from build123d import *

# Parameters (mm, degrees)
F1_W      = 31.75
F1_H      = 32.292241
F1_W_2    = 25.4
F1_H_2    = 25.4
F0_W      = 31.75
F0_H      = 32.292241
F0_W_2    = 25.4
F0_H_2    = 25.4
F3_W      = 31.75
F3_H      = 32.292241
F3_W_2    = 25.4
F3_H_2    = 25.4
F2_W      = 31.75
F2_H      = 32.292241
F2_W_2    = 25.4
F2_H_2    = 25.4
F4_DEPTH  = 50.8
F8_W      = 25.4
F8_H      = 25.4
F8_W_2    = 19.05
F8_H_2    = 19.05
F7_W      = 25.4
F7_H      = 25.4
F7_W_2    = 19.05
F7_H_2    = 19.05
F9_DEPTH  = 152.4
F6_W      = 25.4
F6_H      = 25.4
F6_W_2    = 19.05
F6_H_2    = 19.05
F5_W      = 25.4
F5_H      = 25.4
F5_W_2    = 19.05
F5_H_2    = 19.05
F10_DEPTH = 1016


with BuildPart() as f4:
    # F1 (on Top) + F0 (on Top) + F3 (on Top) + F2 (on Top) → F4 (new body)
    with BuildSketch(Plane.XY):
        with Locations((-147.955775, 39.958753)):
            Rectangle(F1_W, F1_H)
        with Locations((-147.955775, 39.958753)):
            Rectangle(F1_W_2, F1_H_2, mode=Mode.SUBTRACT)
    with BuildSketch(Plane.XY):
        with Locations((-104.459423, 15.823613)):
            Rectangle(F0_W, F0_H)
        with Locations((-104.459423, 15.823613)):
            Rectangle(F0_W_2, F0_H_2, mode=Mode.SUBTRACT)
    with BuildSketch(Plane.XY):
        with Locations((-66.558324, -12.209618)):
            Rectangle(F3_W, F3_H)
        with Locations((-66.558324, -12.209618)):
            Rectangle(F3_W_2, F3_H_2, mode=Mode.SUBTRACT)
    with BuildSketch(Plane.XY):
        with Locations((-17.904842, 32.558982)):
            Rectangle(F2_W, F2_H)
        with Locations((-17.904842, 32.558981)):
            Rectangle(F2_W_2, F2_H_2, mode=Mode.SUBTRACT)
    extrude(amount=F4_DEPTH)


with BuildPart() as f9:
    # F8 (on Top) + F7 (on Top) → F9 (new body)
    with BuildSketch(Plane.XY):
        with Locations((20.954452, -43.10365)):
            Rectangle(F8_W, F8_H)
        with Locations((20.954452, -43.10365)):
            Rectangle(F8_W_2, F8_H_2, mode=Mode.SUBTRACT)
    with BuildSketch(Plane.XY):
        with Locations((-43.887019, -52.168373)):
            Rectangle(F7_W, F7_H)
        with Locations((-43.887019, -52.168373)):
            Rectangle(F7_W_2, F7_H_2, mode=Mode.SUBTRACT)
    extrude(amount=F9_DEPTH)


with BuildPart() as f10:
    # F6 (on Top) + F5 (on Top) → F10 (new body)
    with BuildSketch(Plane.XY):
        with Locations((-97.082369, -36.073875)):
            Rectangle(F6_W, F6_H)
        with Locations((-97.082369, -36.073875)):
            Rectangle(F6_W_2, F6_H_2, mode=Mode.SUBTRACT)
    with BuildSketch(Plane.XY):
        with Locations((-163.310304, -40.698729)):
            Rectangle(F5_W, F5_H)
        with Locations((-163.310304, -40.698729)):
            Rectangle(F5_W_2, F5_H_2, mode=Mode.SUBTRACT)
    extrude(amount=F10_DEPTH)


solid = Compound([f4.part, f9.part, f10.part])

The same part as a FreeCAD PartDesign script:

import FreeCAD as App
import Part
import Sketcher
from FreeCAD import Vector
Q = App.Units.Quantity


def add_polygon(sketch, points):
    """Adds a closed chain of lines whose ends are joined by coincident constraints."""
    first, n = sketch.GeometryCount, len(points)
    for a, b in zip(points, points[1:] + points[:1]):
        sketch.addGeometry(Part.LineSegment(App.Vector(*a, 0), App.Vector(*b, 0)), False)
    for i in range(n):
        sketch.addConstraint(Sketcher.Constraint("Coincident", first + i, 2, first + (i + 1) % n, 1))

doc = App.newDocument("Part")
params = doc.addObject("Spreadsheet::Sheet", "Params")
for row, (alias, value) in enumerate([
    ("sketch1_width", "1 in"),
    ("sketch1_width2", "1.25 in"),
    ("pad1_length", "2 in"),
    ("sketch2_width", "1 in"),
    ("sketch2_width2", "0.75 in"),
    ("pad2_length", "6 in"),
    ("sketch3_width", "1 in"),
    ("sketch3_width2", "0.75 in"),
    ("pad3_length", "40 in"),
], start=1):
    params.set(f"A{row}", alias)
    params.set(f"B{row}", "=" + value)
    params.setAlias(f"B{row}", alias)

body = doc.addObject("PartDesign::Body", "Body")
body.AllowCompound = True

# Sketch on XY plane
sketch1 = doc.addObject("Sketcher::SketchObject", "Sketch")
body.addObject(sketch1)
sketch1.AttachmentSupport = (doc.XY_Plane, [""])
sketch1.MapMode = "FlatFace"
add_polygon(sketch1, [(-164, 56), (-164, 24), (-132, 24), (-132, 56)])  # lines 0-3
add_polygon(sketch1, [(-135, 27), (-161, 27), (-161, 53), (-135, 53)])  # lines 4-7
add_polygon(sketch1, [(-120, 32), (-120, 0), (-89, 0), (-89, 32)])  # lines 8-11
add_polygon(sketch1, [(-92, 3), (-117, 3), (-117, 29), (-92, 29)])  # lines 12-15
add_polygon(sketch1, [(-82, 4), (-82, -28), (-51, -28), (-51, 4)])  # lines 16-19
add_polygon(sketch1, [(-54, -25), (-79, -25), (-79, 0), (-54, 0)])  # lines 20-23
add_polygon(sketch1, [(-34, 49), (-34, 16), (-2, 16), (-2, 49)])  # lines 24-27
add_polygon(sketch1, [(-5, 20), (-31, 20), (-31, 45), (-5, 45)])  # lines 28-31
sketch1.addConstraint([
    Sketcher.Constraint("Vertical", 0),
    Sketcher.Constraint("Horizontal", 1),
    Sketcher.Constraint("Vertical", 2),
    Sketcher.Constraint("Horizontal", 3),
    Sketcher.Constraint("Horizontal", 4),
    Sketcher.Constraint("Vertical", 5),
    Sketcher.Constraint("Horizontal", 6),
    Sketcher.Constraint("Vertical", 7),
    Sketcher.Constraint("Vertical", 8),
    Sketcher.Constraint("Horizontal", 9),
    Sketcher.Constraint("Vertical", 10),
    Sketcher.Constraint("Horizontal", 11),
    Sketcher.Constraint("Horizontal", 12),
    Sketcher.Constraint("Vertical", 13),
    Sketcher.Constraint("Horizontal", 14),
    Sketcher.Constraint("Vertical", 15),
    Sketcher.Constraint("Vertical", 16),
    Sketcher.Constraint("Horizontal", 17),
    Sketcher.Constraint("Vertical", 18),
    Sketcher.Constraint("Horizontal", 19),
    Sketcher.Constraint("Horizontal", 20),
    Sketcher.Constraint("Vertical", 21),
    Sketcher.Constraint("Horizontal", 22),
    Sketcher.Constraint("Vertical", 23),
    Sketcher.Constraint("Vertical", 24),
    Sketcher.Constraint("Horizontal", 25),
    Sketcher.Constraint("Vertical", 26),
    Sketcher.Constraint("Horizontal", 27),
    Sketcher.Constraint("Horizontal", 28),
    Sketcher.Constraint("Vertical", 29),
    Sketcher.Constraint("Horizontal", 30),
    Sketcher.Constraint("Vertical", 31),
    Sketcher.Constraint("Equal", 3, 9),
    Sketcher.Constraint("Equal", 6, 12),
    Sketcher.Constraint("Equal", 11, 17),
    Sketcher.Constraint("Equal", 14, 20),
    Sketcher.Constraint("Equal", 19, 25),
    Sketcher.Constraint("Equal", 22, 28),
    Sketcher.Constraint("Equal", 30, 5),
    Sketcher.Constraint("Equal", 2, 8),
    Sketcher.Constraint("Equal", 7, 13),
    Sketcher.Constraint("Equal", 10, 16),
    Sketcher.Constraint("Equal", 15, 21),
    Sketcher.Constraint("Equal", 18, 24),
    Sketcher.Constraint("Equal", 23, 29),
    Sketcher.Constraint("DistanceX", 4, 2, 4, 1, Q("1 in")),
    Sketcher.Constraint("DistanceX", 1, 1, 1, 2, Q("1.25 in")),
    Sketcher.Constraint("DistanceX", 0, 2, 4, 2, Q("0.125 in")),
    Sketcher.Constraint("DistanceX", 8, 2, 12, 2, Q("0.125 in")),
    Sketcher.Constraint("DistanceX", 16, 2, 20, 2, Q("0.125 in")),
    Sketcher.Constraint("DistanceX", 24, 2, 28, 2, Q("0.125 in")),
    Sketcher.Constraint("DistanceY", 0, 2, 0, 1, Q("32.292241 mm")),
    Sketcher.Constraint("DistanceY", 1, 2, 10, 2, Q("8.157101 mm")),
    Sketcher.Constraint("DistanceX", 9, 2, 16, 2, Q("6.151099 mm")),
    Sketcher.Constraint("DistanceY", 17, 2, 24, 2, Q("44.7686 mm")),
    Sketcher.Constraint("DistanceY", 22, 2, 28, 2, Q("19.368599 mm")),
    Sketcher.Constraint("DistanceY", 16, 2, -1, 1, Q("28.355739 mm")),
    Sketcher.Constraint("DistanceX", 25, 2, -1, 1, Q("2.029842 mm")),
    Sketcher.Constraint("DistanceY", -1, 1, 28, 2, Q("19.858981 mm")),
    Sketcher.Constraint("DistanceY", 0, 2, 4, 2, Q("3.44612 mm")),
    Sketcher.Constraint("DistanceX", 1, 2, 8, 2, Q("11.746352 mm")),
    Sketcher.Constraint("DistanceY", 8, 2, 12, 2, Q("3.446121 mm")),
    Sketcher.Constraint("DistanceY", 16, 2, 9, 2, Q("28.033231 mm")),
    Sketcher.Constraint("DistanceX", 18, 2, 24, 2, Q("16.903482 mm")),
])
sketch1.setExpression("Constraints[77]", "Params.sketch1_width")
sketch1.setExpression("Constraints[78]", "Params.sketch1_width2")
pad1 = doc.addObject("PartDesign::Pad", "Pad")
body.addObject(pad1)
pad1.Profile = sketch1
pad1.setExpression("Length", "Params.pad1_length")
body2 = doc.addObject("PartDesign::Body", "Body001")
body2.AllowCompound = True

# Sketch on XY plane
sketch2 = doc.addObject("Sketcher::SketchObject", "Sketch001")
body2.addObject(sketch2)
sketch2.AttachmentSupport = (doc.getObject("XY_Plane001"), [""])
sketch2.MapMode = "FlatFace"
add_polygon(sketch2, [(8, -30), (8, -56), (34, -56), (34, -30)])  # lines 0-3
add_polygon(sketch2, [(30, -53), (11, -53), (11, -34), (30, -34)])  # lines 4-7
add_polygon(sketch2, [(-57, -39), (-57, -65), (-31, -65), (-31, -39)])  # lines 8-11
add_polygon(sketch2, [(-34, -62), (-53, -62), (-53, -43), (-34, -43)])  # lines 12-15
sketch2.addConstraint([
    Sketcher.Constraint("Vertical", 0),
    Sketcher.Constraint("Horizontal", 1),
    Sketcher.Constraint("Vertical", 2),
    Sketcher.Constraint("Horizontal", 3),
    Sketcher.Constraint("Horizontal", 4),
    Sketcher.Constraint("Vertical", 5),
    Sketcher.Constraint("Horizontal", 6),
    Sketcher.Constraint("Vertical", 7),
    Sketcher.Constraint("Vertical", 8),
    Sketcher.Constraint("Horizontal", 9),
    Sketcher.Constraint("Vertical", 10),
    Sketcher.Constraint("Horizontal", 11),
    Sketcher.Constraint("Horizontal", 12),
    Sketcher.Constraint("Vertical", 13),
    Sketcher.Constraint("Horizontal", 14),
    Sketcher.Constraint("Vertical", 15),
    Sketcher.Constraint("Equal", 3, 9),
    Sketcher.Constraint("Equal", 6, 12),
    Sketcher.Constraint("Equal", 11, 0),
    Sketcher.Constraint("Equal", 14, 5),
    Sketcher.Constraint("Equal", 2, 8),
    Sketcher.Constraint("Equal", 7, 13),
    Sketcher.Constraint("DistanceX", 1, 1, 1, 2, Q("1 in")),
    Sketcher.Constraint("DistanceX", 4, 2, 4, 1, Q("0.75 in")),
    Sketcher.Constraint("DistanceX", 0, 2, 4, 2, Q("0.125 in")),
    Sketcher.Constraint("DistanceY", 0, 2, 4, 2, Q("0.125 in")),
    Sketcher.Constraint("DistanceX", 8, 2, 12, 2, Q("0.125 in")),
    Sketcher.Constraint("DistanceY", 8, 2, 12, 2, Q("0.125 in")),
    Sketcher.Constraint("DistanceY", 0, 2, -1, 1, Q("55.80365 mm")),
    Sketcher.Constraint("DistanceX", -1, 1, 6, 2, Q("30.479452 mm")),
    Sketcher.Constraint("DistanceX", 8, 2, -1, 1, Q("56.587019 mm")),
    Sketcher.Constraint("DistanceY", 8, 2, -1, 1, Q("64.868373 mm")),
])
sketch2.setExpression("Constraints[38]", "Params.sketch2_width")
sketch2.setExpression("Constraints[39]", "Params.sketch2_width2")
pad2 = doc.addObject("PartDesign::Pad", "Pad001")
body2.addObject(pad2)
pad2.Profile = sketch2
pad2.setExpression("Length", "Params.pad2_length")
body3 = doc.addObject("PartDesign::Body", "Body002")
body3.AllowCompound = True

# Sketch on XY plane
sketch3 = doc.addObject("Sketcher::SketchObject", "Sketch002")
body3.addObject(sketch3)
sketch3.AttachmentSupport = (doc.getObject("XY_Plane002"), [""])
sketch3.MapMode = "FlatFace"
add_polygon(sketch3, [(-110, -23), (-110, -49), (-84, -49), (-84, -23)])  # lines 0-3
add_polygon(sketch3, [(-88, -46), (-107, -46), (-107, -27), (-88, -27)])  # lines 4-7
add_polygon(sketch3, [(-176, -28), (-176, -53), (-151, -53), (-151, -28)])  # lines 8-11
add_polygon(sketch3, [(-154, -50), (-173, -50), (-173, -31), (-154, -31)])  # lines 12-15
sketch3.addConstraint([
    Sketcher.Constraint("Vertical", 0),
    Sketcher.Constraint("Horizontal", 1),
    Sketcher.Constraint("Vertical", 2),
    Sketcher.Constraint("Horizontal", 3),
    Sketcher.Constraint("Horizontal", 4),
    Sketcher.Constraint("Vertical", 5),
    Sketcher.Constraint("Horizontal", 6),
    Sketcher.Constraint("Vertical", 7),
    Sketcher.Constraint("Vertical", 8),
    Sketcher.Constraint("Horizontal", 9),
    Sketcher.Constraint("Vertical", 10),
    Sketcher.Constraint("Horizontal", 11),
    Sketcher.Constraint("Horizontal", 12),
    Sketcher.Constraint("Vertical", 13),
    Sketcher.Constraint("Horizontal", 14),
    Sketcher.Constraint("Vertical", 15),
    Sketcher.Constraint("Equal", 3, 9),
    Sketcher.Constraint("Equal", 6, 12),
    Sketcher.Constraint("Equal", 11, 0),
    Sketcher.Constraint("Equal", 14, 5),
    Sketcher.Constraint("Equal", 2, 8),
    Sketcher.Constraint("Equal", 7, 13),
    Sketcher.Constraint("DistanceX", 1, 1, 1, 2, Q("1 in")),
    Sketcher.Constraint("DistanceX", 4, 2, 4, 1, Q("0.75 in")),
    Sketcher.Constraint("DistanceX", 0, 2, 4, 2, Q("0.125 in")),
    Sketcher.Constraint("DistanceY", 0, 2, 4, 2, Q("0.125 in")),
    Sketcher.Constraint("DistanceX", 8, 2, 12, 2, Q("0.125 in")),
    Sketcher.Constraint("DistanceY", 8, 2, 12, 2, Q("0.125 in")),
    Sketcher.Constraint("DistanceX", 0, 2, -1, 1, Q("109.782369 mm")),
    Sketcher.Constraint("DistanceY", 8, 2, -1, 1, Q("53.398729 mm")),
    Sketcher.Constraint("DistanceY", 0, 2, -1, 1, Q("48.773875 mm")),
    Sketcher.Constraint("DistanceX", 8, 2, -1, 1, Q("176.010304 mm")),
])
sketch3.setExpression("Constraints[38]", "Params.sketch3_width")
sketch3.setExpression("Constraints[39]", "Params.sketch3_width2")
pad3 = doc.addObject("PartDesign::Pad", "Pad002")
body3.addObject(pad3)
pad3.Profile = sketch3
pad3.setExpression("Length", "Params.pad3_length")

doc.recompute()
